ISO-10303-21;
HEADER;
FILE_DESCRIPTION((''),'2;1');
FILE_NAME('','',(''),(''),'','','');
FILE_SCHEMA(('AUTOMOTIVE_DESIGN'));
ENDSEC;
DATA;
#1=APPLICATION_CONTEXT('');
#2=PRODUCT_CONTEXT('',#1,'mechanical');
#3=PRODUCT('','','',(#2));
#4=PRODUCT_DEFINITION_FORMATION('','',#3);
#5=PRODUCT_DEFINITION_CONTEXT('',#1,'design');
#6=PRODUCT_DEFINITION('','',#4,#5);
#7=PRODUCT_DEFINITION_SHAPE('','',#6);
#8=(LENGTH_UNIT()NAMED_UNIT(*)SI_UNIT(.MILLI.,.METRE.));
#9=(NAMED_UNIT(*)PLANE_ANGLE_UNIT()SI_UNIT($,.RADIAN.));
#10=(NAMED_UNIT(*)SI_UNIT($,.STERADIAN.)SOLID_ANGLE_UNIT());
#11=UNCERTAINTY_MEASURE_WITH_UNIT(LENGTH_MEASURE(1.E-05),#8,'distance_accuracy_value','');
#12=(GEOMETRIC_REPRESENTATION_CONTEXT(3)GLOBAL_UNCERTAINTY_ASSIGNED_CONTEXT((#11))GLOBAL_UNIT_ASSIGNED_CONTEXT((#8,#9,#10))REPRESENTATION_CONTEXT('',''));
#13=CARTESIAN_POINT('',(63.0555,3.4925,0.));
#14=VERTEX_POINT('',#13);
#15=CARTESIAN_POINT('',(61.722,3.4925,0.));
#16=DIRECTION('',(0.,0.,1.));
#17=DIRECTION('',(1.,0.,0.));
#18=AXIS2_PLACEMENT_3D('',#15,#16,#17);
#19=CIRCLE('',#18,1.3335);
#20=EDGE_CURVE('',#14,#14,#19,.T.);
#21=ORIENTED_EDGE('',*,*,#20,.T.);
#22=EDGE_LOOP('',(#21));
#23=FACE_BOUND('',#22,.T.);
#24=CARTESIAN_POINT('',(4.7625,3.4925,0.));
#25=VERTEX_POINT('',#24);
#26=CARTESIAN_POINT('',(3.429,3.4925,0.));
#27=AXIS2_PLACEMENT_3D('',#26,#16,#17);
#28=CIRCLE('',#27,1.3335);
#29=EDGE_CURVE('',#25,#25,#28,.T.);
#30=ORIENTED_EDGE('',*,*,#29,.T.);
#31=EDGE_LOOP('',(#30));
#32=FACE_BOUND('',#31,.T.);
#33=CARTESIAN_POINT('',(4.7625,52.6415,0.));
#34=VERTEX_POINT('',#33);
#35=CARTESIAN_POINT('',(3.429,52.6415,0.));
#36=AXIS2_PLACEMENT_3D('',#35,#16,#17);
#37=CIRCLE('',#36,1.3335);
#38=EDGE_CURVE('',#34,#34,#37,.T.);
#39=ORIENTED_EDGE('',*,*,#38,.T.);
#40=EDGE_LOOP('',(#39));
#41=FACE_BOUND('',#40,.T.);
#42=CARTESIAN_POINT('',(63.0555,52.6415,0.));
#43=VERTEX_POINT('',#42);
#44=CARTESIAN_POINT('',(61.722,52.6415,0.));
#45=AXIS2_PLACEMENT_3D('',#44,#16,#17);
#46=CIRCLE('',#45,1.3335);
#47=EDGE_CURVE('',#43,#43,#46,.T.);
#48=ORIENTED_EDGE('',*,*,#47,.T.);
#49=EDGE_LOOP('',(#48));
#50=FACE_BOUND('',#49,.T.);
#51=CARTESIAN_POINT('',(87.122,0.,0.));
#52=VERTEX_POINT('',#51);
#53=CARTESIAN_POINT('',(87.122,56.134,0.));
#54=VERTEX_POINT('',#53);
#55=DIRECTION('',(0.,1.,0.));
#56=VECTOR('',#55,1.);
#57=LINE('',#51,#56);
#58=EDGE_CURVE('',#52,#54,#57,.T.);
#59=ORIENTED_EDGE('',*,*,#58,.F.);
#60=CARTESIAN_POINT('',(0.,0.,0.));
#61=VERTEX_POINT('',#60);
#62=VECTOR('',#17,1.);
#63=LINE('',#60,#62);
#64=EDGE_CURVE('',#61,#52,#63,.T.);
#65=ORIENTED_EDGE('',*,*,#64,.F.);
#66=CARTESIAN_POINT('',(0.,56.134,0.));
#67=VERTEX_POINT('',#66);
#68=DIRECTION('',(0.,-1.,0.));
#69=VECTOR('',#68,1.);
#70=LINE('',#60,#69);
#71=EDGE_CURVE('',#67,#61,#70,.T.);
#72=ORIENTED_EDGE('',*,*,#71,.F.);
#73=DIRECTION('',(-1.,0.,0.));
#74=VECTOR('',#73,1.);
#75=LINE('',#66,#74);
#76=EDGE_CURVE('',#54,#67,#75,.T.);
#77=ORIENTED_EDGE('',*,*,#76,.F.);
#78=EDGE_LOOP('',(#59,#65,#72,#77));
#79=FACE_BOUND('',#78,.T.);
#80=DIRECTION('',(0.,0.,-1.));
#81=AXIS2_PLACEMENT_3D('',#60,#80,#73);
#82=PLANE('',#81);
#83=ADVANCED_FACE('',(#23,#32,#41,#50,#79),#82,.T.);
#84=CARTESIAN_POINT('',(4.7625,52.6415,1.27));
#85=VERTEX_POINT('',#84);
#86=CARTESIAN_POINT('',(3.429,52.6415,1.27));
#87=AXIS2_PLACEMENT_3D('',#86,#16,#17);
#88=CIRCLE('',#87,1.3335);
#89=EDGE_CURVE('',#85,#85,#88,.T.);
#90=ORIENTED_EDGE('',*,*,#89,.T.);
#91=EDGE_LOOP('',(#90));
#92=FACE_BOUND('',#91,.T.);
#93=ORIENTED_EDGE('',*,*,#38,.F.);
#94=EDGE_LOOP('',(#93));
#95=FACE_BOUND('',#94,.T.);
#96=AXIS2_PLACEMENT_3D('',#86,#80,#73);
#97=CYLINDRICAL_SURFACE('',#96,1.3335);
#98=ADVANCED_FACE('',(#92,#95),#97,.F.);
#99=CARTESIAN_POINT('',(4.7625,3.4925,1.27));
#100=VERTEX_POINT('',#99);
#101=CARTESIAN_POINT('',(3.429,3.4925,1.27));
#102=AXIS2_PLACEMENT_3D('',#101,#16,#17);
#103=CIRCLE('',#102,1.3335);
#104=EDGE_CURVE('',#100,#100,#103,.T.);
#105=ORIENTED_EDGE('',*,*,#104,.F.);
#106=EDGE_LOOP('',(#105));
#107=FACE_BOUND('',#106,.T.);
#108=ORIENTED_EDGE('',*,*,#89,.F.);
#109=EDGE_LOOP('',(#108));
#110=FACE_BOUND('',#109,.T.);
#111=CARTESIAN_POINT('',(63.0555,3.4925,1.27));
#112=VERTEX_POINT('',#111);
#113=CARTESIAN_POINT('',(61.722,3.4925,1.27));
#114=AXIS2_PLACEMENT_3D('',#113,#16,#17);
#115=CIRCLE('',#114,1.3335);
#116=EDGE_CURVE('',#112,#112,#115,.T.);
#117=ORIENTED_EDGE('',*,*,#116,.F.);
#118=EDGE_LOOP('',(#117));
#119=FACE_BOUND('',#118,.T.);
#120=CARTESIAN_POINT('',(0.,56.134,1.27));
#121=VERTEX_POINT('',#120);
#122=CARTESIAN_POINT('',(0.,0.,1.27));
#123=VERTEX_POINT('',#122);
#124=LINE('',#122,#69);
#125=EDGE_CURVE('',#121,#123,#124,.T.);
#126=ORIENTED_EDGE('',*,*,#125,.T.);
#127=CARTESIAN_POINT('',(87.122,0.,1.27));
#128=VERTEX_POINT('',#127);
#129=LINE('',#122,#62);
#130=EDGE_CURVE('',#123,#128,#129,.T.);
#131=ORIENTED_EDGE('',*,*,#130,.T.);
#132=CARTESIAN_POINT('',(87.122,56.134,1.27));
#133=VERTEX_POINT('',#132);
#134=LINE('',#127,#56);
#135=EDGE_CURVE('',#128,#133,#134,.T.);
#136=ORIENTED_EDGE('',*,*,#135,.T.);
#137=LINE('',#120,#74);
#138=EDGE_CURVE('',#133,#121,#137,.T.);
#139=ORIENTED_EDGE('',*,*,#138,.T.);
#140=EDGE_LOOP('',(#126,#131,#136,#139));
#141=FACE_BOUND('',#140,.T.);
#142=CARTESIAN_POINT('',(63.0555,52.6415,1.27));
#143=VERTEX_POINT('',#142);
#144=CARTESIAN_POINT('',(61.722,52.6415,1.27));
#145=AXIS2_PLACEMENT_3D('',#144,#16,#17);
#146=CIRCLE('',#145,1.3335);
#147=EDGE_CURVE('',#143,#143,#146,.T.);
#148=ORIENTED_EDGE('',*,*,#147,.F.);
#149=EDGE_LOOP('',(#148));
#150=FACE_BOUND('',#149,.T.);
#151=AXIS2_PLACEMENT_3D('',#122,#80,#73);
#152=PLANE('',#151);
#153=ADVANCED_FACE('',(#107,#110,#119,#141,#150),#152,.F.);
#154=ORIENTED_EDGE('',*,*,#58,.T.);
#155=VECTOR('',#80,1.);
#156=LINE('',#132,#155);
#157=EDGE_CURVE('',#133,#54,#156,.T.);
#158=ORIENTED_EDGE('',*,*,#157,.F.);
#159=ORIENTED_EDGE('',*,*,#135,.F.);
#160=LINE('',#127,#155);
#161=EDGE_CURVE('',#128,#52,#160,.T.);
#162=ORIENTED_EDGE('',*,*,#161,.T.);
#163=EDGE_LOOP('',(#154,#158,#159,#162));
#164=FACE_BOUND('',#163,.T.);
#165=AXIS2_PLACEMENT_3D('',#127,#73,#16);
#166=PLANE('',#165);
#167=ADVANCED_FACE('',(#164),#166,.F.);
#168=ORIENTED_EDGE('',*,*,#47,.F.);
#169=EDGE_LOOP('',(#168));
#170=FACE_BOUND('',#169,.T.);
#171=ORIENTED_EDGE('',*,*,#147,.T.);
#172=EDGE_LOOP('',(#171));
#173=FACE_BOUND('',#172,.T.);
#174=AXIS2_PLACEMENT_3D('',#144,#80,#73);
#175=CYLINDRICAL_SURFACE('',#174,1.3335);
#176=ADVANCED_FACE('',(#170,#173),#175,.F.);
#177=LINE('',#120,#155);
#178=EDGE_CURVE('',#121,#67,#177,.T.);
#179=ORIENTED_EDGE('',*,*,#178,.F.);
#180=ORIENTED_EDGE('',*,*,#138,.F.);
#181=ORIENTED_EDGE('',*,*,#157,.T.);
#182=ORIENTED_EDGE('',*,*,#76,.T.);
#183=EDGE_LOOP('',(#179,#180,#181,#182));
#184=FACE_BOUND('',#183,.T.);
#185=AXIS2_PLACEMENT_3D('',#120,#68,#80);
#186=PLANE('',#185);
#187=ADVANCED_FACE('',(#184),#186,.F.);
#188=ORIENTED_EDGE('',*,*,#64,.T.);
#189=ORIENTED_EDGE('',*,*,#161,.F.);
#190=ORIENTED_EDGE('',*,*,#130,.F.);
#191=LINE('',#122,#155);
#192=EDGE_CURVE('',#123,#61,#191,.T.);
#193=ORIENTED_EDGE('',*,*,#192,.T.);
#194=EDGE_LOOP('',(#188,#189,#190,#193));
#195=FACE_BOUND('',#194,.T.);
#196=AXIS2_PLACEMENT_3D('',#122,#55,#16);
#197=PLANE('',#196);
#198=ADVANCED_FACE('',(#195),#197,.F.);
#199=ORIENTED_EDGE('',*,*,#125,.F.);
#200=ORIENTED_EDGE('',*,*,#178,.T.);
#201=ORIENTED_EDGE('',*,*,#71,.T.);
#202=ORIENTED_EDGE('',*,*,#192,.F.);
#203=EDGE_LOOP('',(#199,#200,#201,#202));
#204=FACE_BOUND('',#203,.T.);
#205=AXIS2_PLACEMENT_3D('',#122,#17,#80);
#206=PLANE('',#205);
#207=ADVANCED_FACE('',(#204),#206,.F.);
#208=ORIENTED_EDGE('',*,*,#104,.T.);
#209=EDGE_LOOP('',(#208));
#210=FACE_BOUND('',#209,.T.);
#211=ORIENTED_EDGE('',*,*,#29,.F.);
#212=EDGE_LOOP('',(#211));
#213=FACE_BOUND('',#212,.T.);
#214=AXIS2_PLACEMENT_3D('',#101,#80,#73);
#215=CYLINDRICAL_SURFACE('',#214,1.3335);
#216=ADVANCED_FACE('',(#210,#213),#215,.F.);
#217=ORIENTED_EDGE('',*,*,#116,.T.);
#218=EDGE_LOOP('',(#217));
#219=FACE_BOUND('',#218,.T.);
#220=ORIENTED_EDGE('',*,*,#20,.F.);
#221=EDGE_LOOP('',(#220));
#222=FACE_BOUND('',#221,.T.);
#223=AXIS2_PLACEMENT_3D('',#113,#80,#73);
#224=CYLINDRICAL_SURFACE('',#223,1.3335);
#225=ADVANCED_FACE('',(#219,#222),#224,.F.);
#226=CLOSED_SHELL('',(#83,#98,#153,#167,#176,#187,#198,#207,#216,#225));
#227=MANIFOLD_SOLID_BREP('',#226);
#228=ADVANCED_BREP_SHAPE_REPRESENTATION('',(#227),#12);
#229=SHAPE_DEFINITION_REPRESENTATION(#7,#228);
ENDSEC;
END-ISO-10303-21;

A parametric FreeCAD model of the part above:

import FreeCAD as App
import Part
import Sketcher

V = App.Vector
Q = App.Units.Quantity

doc = App.newDocument("Part")
body = doc.addObject("PartDesign::Body", "Body")

# Sketch on XY plane
sketch1 = body.newObject("Sketcher::SketchObject", "Sketch")
sketch1.AttachmentSupport = (doc.getObject("XY_Plane"), [""])
sketch1.MapMode = "FlatFace"
sketch1.addGeometry([
    Part.LineSegment(V(0, 56.134, 0), V(0, 0, 0)),  # 0
    Part.LineSegment(V(0, 0, 0), V(87.122, 0, 0)),  # 1
    Part.LineSegment(V(87.122, 0, 0), V(87.122, 56.134, 0)),  # 2
    Part.LineSegment(V(87.122, 56.134, 0), V(0, 56.134, 0)),  # 3
    Part.Circle(V(3.429, 3.4925, 0), V(0, 0, 1), 1.3335),  # 4
    Part.Circle(V(61.722, 3.4925, 0), V(0, 0, 1), 1.3335),  # 5
    Part.Circle(V(3.429, 52.6415, 0), V(0, 0, 1), 1.3335),  # 6
    Part.Circle(V(61.722, 52.6415, 0), V(0, 0, 1), 1.3335),  # 7
], False)
sketch1.addConstraint([
    Sketcher.Constraint("Coincident", 0, 2, 1, 1),
    Sketcher.Constraint("Coincident", 1, 2, 2, 1),
    Sketcher.Constraint("Coincident", 2, 2, 3, 1),
    Sketcher.Constraint("Coincident", 3, 2, 0, 1),
    Sketcher.Constraint("Vertical", 0),
    Sketcher.Constraint("Horizontal", 1),
    Sketcher.Constraint("Vertical", 2),
    Sketcher.Constraint("Horizontal", 3),
    Sketcher.Constraint("Coincident", 0, 2, -1, 1),
    Sketcher.Constraint("Equal", 4, 5),
    Sketcher.Constraint("Equal", 5, 6),
    Sketcher.Constraint("Equal", 6, 7),
    Sketcher.Constraint("Horizontal", 4, 3, 5, 3),
    Sketcher.Constraint("Horizontal", 6, 3, 7, 3),
    Sketcher.Constraint("Vertical", 4, 3, 6, 3),
    Sketcher.Constraint("Vertical", 5, 3, 7, 3),
    Sketcher.Constraint("Diameter", 4, Q("0.105 in")),
    Sketcher.Constraint("DistanceX", 5, 3, 1, 2, Q("1 in")),
    Sketcher.Constraint("DistanceX", 1, 1, 1, 2, Q("3.43 in")),
    Sketcher.Constraint("DistanceY", 0, 2, 0, 1, Q("2.21 in")),
    Sketcher.Constraint("DistanceX", -1, 1, 4, 3, Q("0.135 in")),
    Sketcher.Constraint("DistanceY", 4, 3, 6, 3, Q("1.935 in")),
    Sketcher.Constraint("DistanceY", -1, 1, 4, 3, Q("0.1375 in")),
])
pad1 = body.newObject("PartDesign::Pad", "Pad")
pad1.Profile = sketch1
pad1.Length = Q("0.05 in")

doc.recompute()
